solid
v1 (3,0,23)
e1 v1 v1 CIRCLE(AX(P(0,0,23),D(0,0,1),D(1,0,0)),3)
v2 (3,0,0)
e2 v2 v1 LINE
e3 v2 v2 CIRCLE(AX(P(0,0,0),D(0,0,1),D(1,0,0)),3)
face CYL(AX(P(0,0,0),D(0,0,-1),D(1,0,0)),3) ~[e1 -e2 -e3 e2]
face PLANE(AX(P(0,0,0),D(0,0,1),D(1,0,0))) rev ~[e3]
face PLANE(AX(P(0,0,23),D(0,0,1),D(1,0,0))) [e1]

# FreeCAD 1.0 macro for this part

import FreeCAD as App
import Part
import Sketcher
from FreeCAD import Vector
Q = App.Units.Quantity

doc = App.newDocument("Part")
params = doc.addObject("Spreadsheet::Sheet", "Params")
for row, (alias, value) in enumerate([
    ("sketch1_diameter", "6 mm"),
    ("pad1_length", "23 mm"),
], start=1):
    params.set(f"A{row}", alias)
    params.set(f"B{row}", "=" + value)
    params.setAlias(f"B{row}", alias)

body = doc.addObject("PartDesign::Body", "Body")

sketch1 = body.newObject("Sketcher::SketchObject", "Sketch")
sketch1.AttachmentSupport = (doc.getObject("XY_Plane"), [""])
sketch1.MapMode = "FlatFace"
sketch1.addGeometry(Part.Circle(Vector(0, 0, 0), Vector(0, 0, 1), 3), False)
sketch1.addConstraint(Sketcher.Constraint("Coincident", 0, 3, -1, 1))
sketch1.addConstraint(Sketcher.Constraint("Diameter", 0, Q("6 mm")))
sketch1.setExpression("Constraints[1]", "Params.sketch1_diameter")
pad1 = body.newObject("PartDesign::Pad", "Pad")
pad1.Profile = sketch1
pad1.setExpression("Length", "Params.pad1_length")

doc.recompute()
